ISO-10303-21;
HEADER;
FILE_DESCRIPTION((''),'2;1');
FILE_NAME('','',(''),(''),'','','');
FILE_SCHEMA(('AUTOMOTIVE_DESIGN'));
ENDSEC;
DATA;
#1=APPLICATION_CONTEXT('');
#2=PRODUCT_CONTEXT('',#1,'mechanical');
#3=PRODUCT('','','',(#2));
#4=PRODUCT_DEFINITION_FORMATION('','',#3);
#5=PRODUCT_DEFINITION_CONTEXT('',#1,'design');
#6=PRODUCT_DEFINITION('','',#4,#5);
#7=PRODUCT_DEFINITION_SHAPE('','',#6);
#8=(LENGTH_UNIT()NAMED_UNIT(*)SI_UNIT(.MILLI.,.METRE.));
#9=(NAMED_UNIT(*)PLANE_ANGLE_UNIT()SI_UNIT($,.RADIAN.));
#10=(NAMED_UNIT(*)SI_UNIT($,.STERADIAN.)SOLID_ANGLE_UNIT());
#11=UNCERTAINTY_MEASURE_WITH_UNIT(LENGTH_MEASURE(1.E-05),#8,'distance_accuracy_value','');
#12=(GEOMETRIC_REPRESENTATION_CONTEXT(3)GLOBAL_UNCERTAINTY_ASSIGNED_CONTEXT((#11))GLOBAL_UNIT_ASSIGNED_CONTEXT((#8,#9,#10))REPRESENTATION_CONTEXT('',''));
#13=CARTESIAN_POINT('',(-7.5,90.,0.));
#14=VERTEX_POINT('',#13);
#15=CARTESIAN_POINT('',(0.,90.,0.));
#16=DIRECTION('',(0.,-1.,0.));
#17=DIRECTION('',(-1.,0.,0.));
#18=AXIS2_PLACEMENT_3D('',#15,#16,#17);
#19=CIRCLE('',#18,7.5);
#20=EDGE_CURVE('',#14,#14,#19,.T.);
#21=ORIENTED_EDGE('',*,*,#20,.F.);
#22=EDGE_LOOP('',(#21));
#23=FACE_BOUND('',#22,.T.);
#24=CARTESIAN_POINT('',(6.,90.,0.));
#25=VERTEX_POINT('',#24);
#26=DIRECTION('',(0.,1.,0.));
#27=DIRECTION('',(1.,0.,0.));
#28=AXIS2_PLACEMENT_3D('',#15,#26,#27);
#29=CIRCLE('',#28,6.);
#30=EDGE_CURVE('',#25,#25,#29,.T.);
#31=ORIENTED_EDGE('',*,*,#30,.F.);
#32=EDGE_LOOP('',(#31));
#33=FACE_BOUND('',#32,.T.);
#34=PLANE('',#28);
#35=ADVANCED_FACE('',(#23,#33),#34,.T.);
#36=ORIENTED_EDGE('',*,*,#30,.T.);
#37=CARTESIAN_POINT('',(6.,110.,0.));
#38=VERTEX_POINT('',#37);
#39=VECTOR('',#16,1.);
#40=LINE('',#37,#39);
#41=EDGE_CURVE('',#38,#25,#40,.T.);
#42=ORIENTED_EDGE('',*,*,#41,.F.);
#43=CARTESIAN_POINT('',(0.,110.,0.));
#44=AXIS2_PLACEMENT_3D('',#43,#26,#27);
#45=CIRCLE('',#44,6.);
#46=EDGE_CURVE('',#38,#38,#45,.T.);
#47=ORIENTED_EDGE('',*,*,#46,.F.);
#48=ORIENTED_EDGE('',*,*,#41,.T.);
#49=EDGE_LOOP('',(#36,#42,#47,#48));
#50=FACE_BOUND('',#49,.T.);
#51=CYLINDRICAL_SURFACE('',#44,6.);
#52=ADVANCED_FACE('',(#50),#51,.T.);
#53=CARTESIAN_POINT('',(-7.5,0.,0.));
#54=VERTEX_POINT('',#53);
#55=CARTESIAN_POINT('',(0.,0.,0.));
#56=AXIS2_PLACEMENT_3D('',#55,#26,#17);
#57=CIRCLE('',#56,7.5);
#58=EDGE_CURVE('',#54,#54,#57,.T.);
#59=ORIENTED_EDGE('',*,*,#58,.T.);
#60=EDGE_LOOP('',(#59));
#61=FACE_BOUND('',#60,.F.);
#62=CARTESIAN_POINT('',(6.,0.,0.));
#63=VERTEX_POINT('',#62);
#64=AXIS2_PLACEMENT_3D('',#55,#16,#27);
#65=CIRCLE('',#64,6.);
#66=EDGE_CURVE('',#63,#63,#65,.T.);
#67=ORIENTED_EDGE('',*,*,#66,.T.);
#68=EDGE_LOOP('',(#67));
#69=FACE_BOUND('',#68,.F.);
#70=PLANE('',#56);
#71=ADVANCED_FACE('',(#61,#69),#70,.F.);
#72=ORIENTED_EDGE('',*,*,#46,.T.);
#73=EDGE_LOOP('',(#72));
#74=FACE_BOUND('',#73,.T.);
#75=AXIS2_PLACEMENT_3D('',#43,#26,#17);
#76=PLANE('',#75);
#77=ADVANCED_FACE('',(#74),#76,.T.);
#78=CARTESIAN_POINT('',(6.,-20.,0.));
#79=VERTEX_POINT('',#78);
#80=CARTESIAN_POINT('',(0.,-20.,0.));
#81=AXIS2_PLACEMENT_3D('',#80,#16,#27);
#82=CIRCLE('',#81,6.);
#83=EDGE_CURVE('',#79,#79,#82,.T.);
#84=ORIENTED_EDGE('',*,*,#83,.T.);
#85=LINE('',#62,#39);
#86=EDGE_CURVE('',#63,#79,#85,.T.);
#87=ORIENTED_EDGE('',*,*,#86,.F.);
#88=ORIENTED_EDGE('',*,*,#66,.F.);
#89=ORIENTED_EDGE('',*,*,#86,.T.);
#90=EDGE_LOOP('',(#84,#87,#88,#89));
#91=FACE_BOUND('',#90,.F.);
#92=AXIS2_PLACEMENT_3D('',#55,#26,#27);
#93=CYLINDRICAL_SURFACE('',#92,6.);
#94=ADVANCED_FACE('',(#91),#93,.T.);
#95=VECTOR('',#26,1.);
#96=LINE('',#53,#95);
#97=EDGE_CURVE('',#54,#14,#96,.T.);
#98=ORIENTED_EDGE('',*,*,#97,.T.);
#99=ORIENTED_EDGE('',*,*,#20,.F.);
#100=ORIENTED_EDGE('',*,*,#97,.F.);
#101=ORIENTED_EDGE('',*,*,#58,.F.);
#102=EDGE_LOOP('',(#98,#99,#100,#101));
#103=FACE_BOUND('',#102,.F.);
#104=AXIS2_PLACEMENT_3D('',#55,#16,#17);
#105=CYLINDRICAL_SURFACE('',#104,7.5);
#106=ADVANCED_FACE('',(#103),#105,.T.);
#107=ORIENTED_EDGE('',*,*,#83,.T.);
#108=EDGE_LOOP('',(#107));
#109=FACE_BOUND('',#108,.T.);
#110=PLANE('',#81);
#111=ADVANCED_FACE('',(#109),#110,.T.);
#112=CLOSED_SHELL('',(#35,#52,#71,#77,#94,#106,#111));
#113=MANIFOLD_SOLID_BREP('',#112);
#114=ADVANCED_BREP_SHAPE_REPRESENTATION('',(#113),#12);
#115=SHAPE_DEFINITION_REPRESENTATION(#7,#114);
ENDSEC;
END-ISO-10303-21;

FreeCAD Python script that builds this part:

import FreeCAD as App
import Part
import Sketcher
from FreeCAD import Vector

doc = App.newDocument("Part")
body = doc.addObject("PartDesign::Body", "Body")

# Sketch on XZ plane
sketch1 = doc.addObject("Sketcher::SketchObject", "Sketch")
body.addObject(sketch1)
sketch1.AttachmentSupport = (doc.XZ_Plane, [""])
sketch1.MapMode = "FlatFace"
sketch1.addGeometry(Part.Circle(Vector(0, 0, 0), Vector(0, 0, 1), 7.5), False)
sketch1.addConstraint(Sketcher.Constraint("Coincident", 0, 3, -1, 1))
sketch1.addConstraint(Sketcher.Constraint("Diameter", 0, 15.0))
pad1 = doc.addObject("PartDesign::Pad", "Pad")
body.addObject(pad1)
pad1.Profile = sketch1
pad1.Length = 110
pad1.Reversed = True

# Sketch on XZ plane
sketch2 = doc.addObject("Sketcher::SketchObject", "Sketch001")
body.addObject(sketch2)
sketch2.AttachmentSupport = (doc.XZ_Plane, [""])
sketch2.MapMode = "FlatFace"
sketch2.AttachmentOffset = App.Placement(Vector(0, 0, -110), App.Rotation())
sketch2.addGeometry(Part.Circle(Vector(0, 0, 0), Vector(0, 0, 1), 8), False)
sketch2.addGeometry(Part.Circle(Vector(0, 0, 0), Vector(0, 0, 1), 6), False)
sketch2.addConstraint(Sketcher.Constraint("Coincident", 0, 3, -1, 1))
sketch2.addConstraint(Sketcher.Constraint("Coincident", 1, 3, -1, 1))
sketch2.addConstraint(Sketcher.Constraint("Diameter", 1, 12.0))
sketch2.addConstraint(Sketcher.Constraint("Diameter", 0, 16.0))
pocket1 = doc.addObject("PartDesign::Pocket", "Pocket")
body.addObject(pocket1)
pocket1.Profile = sketch2
pocket1.Length = 20
pocket1.Reversed = True

# Sketch on XZ plane
sketch3 = doc.addObject("Sketcher::SketchObject", "Sketch002")
body.addObject(sketch3)
sketch3.AttachmentSupport = (doc.XZ_Plane, [""])
sketch3.MapMode = "FlatFace"
sketch3.addGeometry(Part.Circle(Vector(0, 0, 0), Vector(0, 0, 1), 6), False)
sketch3.addConstraint(Sketcher.Constraint("Coincident", 0, 3, -1, 1))
sketch3.addConstraint(Sketcher.Constraint("Diameter", 0, 12.0))
pad2 = doc.addObject("PartDesign::Pad", "Pad001")
body.addObject(pad2)
pad2.Profile = sketch3
pad2.Length = 20

doc.recompute()
